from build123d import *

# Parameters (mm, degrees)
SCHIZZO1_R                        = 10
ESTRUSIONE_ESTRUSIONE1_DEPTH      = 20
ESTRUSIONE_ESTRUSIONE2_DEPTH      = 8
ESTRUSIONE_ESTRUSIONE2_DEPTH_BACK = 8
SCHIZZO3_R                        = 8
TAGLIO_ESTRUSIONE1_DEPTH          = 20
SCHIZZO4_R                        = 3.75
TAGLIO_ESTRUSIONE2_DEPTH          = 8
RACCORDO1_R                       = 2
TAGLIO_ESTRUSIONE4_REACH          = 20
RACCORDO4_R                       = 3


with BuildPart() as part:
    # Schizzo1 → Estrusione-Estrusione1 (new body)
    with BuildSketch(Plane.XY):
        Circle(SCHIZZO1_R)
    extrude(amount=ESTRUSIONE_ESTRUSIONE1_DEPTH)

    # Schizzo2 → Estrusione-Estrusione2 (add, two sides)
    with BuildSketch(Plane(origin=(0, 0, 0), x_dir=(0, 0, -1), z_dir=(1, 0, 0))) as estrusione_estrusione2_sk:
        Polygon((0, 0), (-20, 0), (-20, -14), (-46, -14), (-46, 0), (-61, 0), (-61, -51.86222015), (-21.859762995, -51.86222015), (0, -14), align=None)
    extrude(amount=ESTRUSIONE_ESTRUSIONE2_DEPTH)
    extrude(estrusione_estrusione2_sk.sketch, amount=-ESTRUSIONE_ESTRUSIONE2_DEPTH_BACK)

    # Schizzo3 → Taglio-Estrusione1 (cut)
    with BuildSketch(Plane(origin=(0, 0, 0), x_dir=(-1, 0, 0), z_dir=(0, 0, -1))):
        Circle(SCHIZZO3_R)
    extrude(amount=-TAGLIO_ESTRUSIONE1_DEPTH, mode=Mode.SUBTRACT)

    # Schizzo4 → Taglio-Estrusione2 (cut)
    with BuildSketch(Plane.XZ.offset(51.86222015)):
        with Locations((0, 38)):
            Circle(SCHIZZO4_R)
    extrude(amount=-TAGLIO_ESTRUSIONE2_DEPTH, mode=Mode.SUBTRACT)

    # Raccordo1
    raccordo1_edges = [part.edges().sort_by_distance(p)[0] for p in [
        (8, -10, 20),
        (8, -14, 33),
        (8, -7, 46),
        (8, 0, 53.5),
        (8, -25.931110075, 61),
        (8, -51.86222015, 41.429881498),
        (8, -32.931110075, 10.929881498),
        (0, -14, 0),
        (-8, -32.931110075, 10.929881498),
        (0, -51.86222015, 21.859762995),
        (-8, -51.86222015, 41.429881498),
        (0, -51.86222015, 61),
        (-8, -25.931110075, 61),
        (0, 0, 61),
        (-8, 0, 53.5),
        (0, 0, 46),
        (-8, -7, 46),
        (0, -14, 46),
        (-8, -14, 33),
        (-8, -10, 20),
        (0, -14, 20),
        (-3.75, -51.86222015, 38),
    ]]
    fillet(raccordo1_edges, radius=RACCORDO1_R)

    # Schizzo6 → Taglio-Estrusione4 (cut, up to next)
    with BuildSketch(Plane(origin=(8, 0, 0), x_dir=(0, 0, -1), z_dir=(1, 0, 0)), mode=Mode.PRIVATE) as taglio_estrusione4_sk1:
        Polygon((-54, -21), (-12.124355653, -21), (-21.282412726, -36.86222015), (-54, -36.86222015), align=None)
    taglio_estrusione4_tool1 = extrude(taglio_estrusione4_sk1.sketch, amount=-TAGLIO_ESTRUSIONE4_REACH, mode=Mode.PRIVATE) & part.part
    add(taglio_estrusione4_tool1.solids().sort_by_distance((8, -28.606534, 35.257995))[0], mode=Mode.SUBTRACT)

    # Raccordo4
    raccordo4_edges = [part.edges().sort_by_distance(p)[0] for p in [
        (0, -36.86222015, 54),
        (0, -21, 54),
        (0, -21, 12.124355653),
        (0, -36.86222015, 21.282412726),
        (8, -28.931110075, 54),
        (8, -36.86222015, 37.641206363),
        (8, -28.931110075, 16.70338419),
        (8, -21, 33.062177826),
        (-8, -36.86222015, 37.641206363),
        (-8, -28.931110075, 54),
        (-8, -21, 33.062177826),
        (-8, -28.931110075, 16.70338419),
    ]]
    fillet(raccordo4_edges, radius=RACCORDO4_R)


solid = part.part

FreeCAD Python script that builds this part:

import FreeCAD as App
import Part
import Sketcher
from FreeCAD import Vector
Q = App.Units.Quantity


def edges_at(feature, points):
    """Names of the edges that pass closest to the given points."""
    edges = feature.Shape.Edges
    near = lambda p: min(range(len(edges)), key=lambda i: edges[i].distToShape(Part.Vertex(*p))[0])
    return sorted({f"Edge{near(p) + 1}" for p in points})

doc = App.newDocument("Part")
body = doc.addObject("PartDesign::Body", "Body")

sketch1 = body.newObject("Sketcher::SketchObject", "Sketch")
sketch1.AttachmentSupport = (doc.getObject("XY_Plane"), [""])
sketch1.MapMode = "FlatFace"
sketch1.addGeometry(Part.Circle(Vector(0, 0, 0), Vector(0, 0, 1), 10), False)
sketch1.addConstraint([
    Sketcher.Constraint("Coincident", 0, 3, -1, 1),
    Sketcher.Constraint("Diameter", 0, 20.0),
])
pad1 = body.newObject("PartDesign::Pad", "Pad")
pad1.Profile = sketch1
pad1.Length = 20

sketch2 = body.newObject("Sketcher::SketchObject", "Sketch001")
sketch2.AttachmentSupport = (doc.getObject("YZ_Plane"), [""])
sketch2.MapMode = "FlatFace"
sketch2.addGeometry([
    Part.LineSegment(Vector(0, 0, 0), Vector(0, 20, 0)),
    Part.LineSegment(Vector(0, 20, 0), Vector(-14, 20, 0)),
    Part.LineSegment(Vector(-14, 20, 0), Vector(-14, 46, 0)),
    Part.LineSegment(Vector(-14, 46, 0), Vector(0, 46, 0)),
    Part.LineSegment(Vector(0, 46, 0), Vector(0, 61, 0)),
    Part.LineSegment(Vector(0, 61, 0), Vector(-52, 61, 0)),
    Part.LineSegment(Vector(-52, 61, 0), Vector(-52, 22, 0)),
    Part.LineSegment(Vector(-52, 22, 0), Vector(-14, 0, 0)),
    Part.LineSegment(Vector(-14, 0, 0), Vector(0, 0, 0)),
], False)
sketch2.addConstraint([
    Sketcher.Constraint("Coincident", 0, 2, 1, 1),
    Sketcher.Constraint("Coincident", 1, 2, 2, 1),
    Sketcher.Constraint("Coincident", 2, 2, 3, 1),
    Sketcher.Constraint("Coincident", 3, 2, 4, 1),
    Sketcher.Constraint("Coincident", 4, 2, 5, 1),
    Sketcher.Constraint("Coincident", 5, 2, 6, 1),
    Sketcher.Constraint("Coincident", 6, 2, 7, 1),
    Sketcher.Constraint("Coincident", 7, 2, 8, 1),
    Sketcher.Constraint("Coincident", 8, 2, 0, 1),
    Sketcher.Constraint("Vertical", 0),
    Sketcher.Constraint("Horizontal", 1),
    Sketcher.Constraint("Vertical", 2),
    Sketcher.Constraint("Horizontal", 3),
    Sketcher.Constraint("Vertical", 4),
    Sketcher.Constraint("Horizontal", 5),
    Sketcher.Constraint("Vertical", 6),
    Sketcher.Constraint("Horizontal", 8),
    Sketcher.Constraint("Coincident", 8, 2, -1, 1),
    Sketcher.Constraint("PointOnObject", 3, 2, -2),
    Sketcher.Constraint("Vertical", 2, 2, 7, 2),
    Sketcher.Constraint("DistanceX", 1, 2, 1, 1, 14.0),
    Sketcher.Constraint("DistanceY", 0, 1, 0, 2, 20.0),
    Sketcher.Constraint("DistanceY", 2, 1, 2, 2, 26.0),
    Sketcher.Constraint("DistanceY", 4, 1, 4, 2, 15.0),
    Sketcher.Constraint("Angle", 7, Q("-30 deg")),
    Sketcher.Constraint("DistanceX", 5, 2, 5, 1, 51.86222),
])
pad2 = body.newObject("PartDesign::Pad", "Pad001")
pad2.Profile = sketch2
pad2.Type = "TwoLengths"
pad2.Length = 8
pad2.Length2 = 8

sketch3 = body.newObject("Sketcher::SketchObject", "Sketch002")
sketch3.AttachmentSupport = (doc.getObject("XY_Plane"), [""])
sketch3.MapMode = "FlatFace"
sketch3.addGeometry(Part.Circle(Vector(0, 0, 0), Vector(0, 0, 1), 8), False)
sketch3.addConstraint([
    Sketcher.Constraint("Coincident", 0, 3, -1, 1),
    Sketcher.Constraint("Diameter", 0, 16.0),
])
pocket1 = body.newObject("PartDesign::Pocket", "Pocket")
pocket1.Profile = sketch3
pocket1.Length = 20
pocket1.Reversed = True

sketch4 = body.newObject("Sketcher::SketchObject", "Sketch003")
sketch4.AttachmentSupport = (doc.getObject("XZ_Plane"), [""])
sketch4.MapMode = "FlatFace"
sketch4.AttachmentOffset = App.Placement(Vector(0, 0, 51.86222), App.Rotation())
sketch4.addGeometry(Part.Circle(Vector(0, 38, 0), Vector(0, 0, 1), 3.8), False)
sketch4.addConstraint([
    Sketcher.Constraint("PointOnObject", 0, 3, -2),
    Sketcher.Constraint("Diameter", 0, 7.5),
    Sketcher.Constraint("DistanceY", -1, 1, 0, 3, 38.0),
])
pocket2 = body.newObject("PartDesign::Pocket", "Pocket001")
pocket2.Profile = sketch4
pocket2.Length = 8
doc.recompute()

fillet = body.newObject("PartDesign::Fillet", "Fillet")
fillet.Base = (pocket2, edges_at(pocket2, [
    (8, -10, 20),
    (8, -14, 33),
    (8, -7, 46),
    (8, 0, 53.5),
    (8, -25.931, 61),
    (8, -51.862, 41.43),
    (8, -32.931, 10.93),
    (0, -14, 0),
    (-8, -32.931, 10.93),
    (0, -51.862, 21.86),
    (-8, -51.862, 41.43),
    (0, -51.862, 61),
    (-8, -25.931, 61),
    (0, 0, 61),
    (-8, 0, 53.5),
    (0, 0, 46),
    (-8, -7, 46),
    (0, -14, 46),
    (-8, -14, 33),
    (-8, -10, 20),
    (0, -14, 20),
    (-3.75, -51.862, 38),
]))
fillet.Radius = 2

sketch5 = body.newObject("Sketcher::SketchObject", "Sketch004")
sketch5.AttachmentSupport = (doc.getObject("YZ_Plane"), [""])
sketch5.MapMode = "FlatFace"
sketch5.AttachmentOffset = App.Placement(Vector(0, 0, 8), App.Rotation())
sketch5.addGeometry([
    Part.LineSegment(Vector(-21, 12, 0), Vector(-21, 54, 0)),
    Part.LineSegment(Vector(-21, 54, 0), Vector(-37, 54, 0)),
    Part.LineSegment(Vector(-37, 54, 0), Vector(-37, 21, 0)),
    Part.LineSegment(Vector(-37, 21, 0), Vector(-21, 12, 0)),
], False)
sketch5.addConstraint([
    Sketcher.Constraint("Coincident", 0, 2, 1, 1),
    Sketcher.Constraint("Coincident", 1, 2, 2, 1),
    Sketcher.Constraint("Coincident", 2, 2, 3, 1),
    Sketcher.Constraint("Coincident", 3, 2, 0, 1),
    Sketcher.Constraint("Vertical", 0),
    Sketcher.Constraint("Horizontal", 1),
    Sketcher.Constraint("Vertical", 2),
    Sketcher.Constraint("Angle", 3, Q("-30 deg")),
    Sketcher.Constraint("DistanceX", 0, 2, -1, 1, 21.0),
    Sketcher.Constraint("DistanceY", -1, 1, 0, 2, 54.0),
    Sketcher.Constraint("DistanceX", 1, 2, 1, 1, 15.86222),
    Sketcher.Constraint("DistanceY", 0, 1, 0, 2, 41.875644),
])
pocket3 = body.newObject("PartDesign::Pocket", "Pocket002")
pocket3.Profile = sketch5
pocket3.Type = "UpToFirst"
doc.recompute()

fillet2 = body.newObject("PartDesign::Fillet", "Fillet001")
fillet2.Base = (pocket3, edges_at(pocket3, [
    (0, -36.862, 54),
    (0, -21, 54),
    (0, -21, 12.124),
    (0, -36.862, 21.282),
    (8, -28.931, 54),
    (8, -36.862, 37.641),
    (8, -28.931, 16.703),
    (8, -21, 33.062),
    (-8, -36.862, 37.641),
    (-8, -28.931, 54),
    (-8, -21, 33.062),
    (-8, -28.931, 16.703),
]))
fillet2.Radius = 3

doc.recompute()
